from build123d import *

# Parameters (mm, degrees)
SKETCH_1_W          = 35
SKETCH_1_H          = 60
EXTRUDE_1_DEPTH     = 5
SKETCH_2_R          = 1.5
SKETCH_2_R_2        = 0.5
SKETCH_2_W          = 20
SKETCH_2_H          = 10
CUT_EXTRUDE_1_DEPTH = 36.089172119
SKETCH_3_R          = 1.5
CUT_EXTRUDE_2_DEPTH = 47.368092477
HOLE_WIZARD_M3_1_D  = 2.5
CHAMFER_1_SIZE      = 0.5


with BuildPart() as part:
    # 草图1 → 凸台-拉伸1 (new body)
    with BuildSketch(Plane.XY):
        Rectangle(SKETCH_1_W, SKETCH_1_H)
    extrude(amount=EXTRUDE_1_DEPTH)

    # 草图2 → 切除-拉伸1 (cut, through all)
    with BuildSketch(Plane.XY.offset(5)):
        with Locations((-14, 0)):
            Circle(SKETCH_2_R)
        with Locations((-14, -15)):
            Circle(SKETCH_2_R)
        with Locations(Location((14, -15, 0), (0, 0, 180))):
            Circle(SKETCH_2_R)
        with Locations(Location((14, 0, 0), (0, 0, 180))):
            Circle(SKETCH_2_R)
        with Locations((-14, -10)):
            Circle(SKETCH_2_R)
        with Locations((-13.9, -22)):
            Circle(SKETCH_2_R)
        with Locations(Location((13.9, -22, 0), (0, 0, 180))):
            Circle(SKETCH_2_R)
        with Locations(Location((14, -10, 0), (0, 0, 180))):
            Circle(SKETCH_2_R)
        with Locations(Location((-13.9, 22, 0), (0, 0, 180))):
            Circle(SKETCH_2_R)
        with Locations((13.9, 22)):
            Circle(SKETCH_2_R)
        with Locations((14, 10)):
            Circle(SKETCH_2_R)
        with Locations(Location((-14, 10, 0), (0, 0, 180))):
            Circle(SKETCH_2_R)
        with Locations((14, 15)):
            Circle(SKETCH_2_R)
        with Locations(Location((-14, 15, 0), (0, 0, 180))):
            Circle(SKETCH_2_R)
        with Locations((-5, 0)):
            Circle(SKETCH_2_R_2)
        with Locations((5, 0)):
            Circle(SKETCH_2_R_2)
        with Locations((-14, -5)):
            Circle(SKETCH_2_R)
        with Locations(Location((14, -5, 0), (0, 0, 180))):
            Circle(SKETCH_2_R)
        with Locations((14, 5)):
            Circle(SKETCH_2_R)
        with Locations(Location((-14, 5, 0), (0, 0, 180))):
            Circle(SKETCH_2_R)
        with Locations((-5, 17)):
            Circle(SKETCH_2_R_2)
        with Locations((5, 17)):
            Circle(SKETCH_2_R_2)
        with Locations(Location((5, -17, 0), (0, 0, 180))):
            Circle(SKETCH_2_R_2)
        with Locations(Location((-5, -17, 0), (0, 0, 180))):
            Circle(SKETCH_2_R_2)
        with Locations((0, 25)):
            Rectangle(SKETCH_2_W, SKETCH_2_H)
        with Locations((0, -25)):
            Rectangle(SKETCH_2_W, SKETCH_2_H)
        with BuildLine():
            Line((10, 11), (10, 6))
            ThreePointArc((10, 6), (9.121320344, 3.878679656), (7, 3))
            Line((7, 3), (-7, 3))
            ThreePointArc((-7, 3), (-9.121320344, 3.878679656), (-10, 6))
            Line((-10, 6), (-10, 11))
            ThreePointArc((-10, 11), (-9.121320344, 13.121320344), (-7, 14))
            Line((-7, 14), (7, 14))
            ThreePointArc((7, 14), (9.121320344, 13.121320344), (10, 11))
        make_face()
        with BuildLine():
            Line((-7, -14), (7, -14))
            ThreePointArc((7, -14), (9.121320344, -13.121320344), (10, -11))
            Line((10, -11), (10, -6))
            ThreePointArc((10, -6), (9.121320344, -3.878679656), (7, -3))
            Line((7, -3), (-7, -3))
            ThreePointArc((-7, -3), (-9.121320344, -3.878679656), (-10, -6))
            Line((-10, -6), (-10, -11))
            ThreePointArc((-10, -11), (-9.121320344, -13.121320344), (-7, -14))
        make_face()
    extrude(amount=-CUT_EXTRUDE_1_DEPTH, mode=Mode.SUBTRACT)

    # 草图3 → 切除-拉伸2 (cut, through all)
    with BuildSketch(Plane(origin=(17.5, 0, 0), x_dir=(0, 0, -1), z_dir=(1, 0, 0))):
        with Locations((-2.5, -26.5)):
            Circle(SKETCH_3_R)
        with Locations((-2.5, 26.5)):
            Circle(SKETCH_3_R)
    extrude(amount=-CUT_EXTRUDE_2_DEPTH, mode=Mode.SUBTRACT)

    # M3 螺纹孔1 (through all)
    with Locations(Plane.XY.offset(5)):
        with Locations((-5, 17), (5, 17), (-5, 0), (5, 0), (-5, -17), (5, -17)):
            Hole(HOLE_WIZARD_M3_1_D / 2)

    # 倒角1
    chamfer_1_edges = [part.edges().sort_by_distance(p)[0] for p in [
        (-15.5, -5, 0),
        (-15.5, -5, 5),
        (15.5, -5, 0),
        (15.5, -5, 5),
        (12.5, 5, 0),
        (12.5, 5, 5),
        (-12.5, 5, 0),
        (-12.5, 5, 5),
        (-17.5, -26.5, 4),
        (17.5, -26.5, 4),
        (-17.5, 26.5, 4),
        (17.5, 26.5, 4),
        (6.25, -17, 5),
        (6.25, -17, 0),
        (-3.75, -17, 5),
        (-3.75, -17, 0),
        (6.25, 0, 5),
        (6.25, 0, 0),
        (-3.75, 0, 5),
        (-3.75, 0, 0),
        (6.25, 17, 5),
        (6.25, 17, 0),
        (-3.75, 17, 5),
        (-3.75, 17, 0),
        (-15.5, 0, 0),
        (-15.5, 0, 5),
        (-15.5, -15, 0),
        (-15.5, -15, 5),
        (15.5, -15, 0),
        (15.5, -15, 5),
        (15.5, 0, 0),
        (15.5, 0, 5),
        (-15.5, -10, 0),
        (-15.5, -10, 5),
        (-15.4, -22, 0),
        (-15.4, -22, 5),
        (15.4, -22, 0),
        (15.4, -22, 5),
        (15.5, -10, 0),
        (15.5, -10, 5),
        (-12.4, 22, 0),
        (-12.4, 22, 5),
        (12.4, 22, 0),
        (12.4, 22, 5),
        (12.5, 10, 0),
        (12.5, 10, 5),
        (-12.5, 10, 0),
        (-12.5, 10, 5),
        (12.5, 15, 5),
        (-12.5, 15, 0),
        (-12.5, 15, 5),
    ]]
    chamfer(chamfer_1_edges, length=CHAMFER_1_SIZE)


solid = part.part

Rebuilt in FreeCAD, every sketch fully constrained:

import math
import FreeCAD as App
import Part
import Sketcher
from FreeCAD import Vector


def edges_at(feature, points):
    """Names of the edges that pass closest to the given points."""
    edges = feature.Shape.Edges
    near = lambda p: min(range(len(edges)), key=lambda i: edges[i].distToShape(Part.Vertex(*p))[0])
    return sorted({f"Edge{near(p) + 1}" for p in points})


def add_polygon(sketch, points):
    """Adds a closed chain of lines whose ends are joined by coincident constraints."""
    first, n = sketch.GeometryCount, len(points)
    for a, b in zip(points, points[1:] + points[:1]):
        sketch.addGeometry(Part.LineSegment(App.Vector(*a, 0), App.Vector(*b, 0)), False)
    for i in range(n):
        sketch.addConstraint(Sketcher.Constraint("Coincident", first + i, 2, first + (i + 1) % n, 1))

doc = App.newDocument("Part")
body = doc.addObject("PartDesign::Body", "Body")

# Sketch on XY plane
sketch1 = doc.addObject("Sketcher::SketchObject", "Sketch")
body.addObject(sketch1)
sketch1.AttachmentSupport = (doc.XY_Plane, [""])
sketch1.MapMode = "FlatFace"
add_polygon(sketch1, [(-18, 30), (-18, -30), (18, -30), (18, 30)])  # lines 0-3
sketch1.addConstraint([
    Sketcher.Constraint("Vertical", 0),
    Sketcher.Constraint("Horizontal", 1),
    Sketcher.Constraint("Vertical", 2),
    Sketcher.Constraint("Horizontal", 3),
    Sketcher.Constraint("Symmetric", 0, 2, 2, 2, -1, 1),
    Sketcher.Constraint("DistanceX", 1, 1, 1, 2, 35.0),
    Sketcher.Constraint("DistanceY", 0, 2, 0, 1, 60.0),
])
pad1 = doc.addObject("PartDesign::Pad", "Pad")
body.addObject(pad1)
pad1.Profile = sketch1
pad1.Length = 5

# Sketch on XY plane
sketch2 = doc.addObject("Sketcher::SketchObject", "Sketch001")
body.addObject(sketch2)
sketch2.AttachmentSupport = (doc.XY_Plane, [""])
sketch2.MapMode = "FlatFace"
sketch2.AttachmentOffset = App.Placement(Vector(0, 0, 5), App.Rotation())
sketch2.addGeometry(Part.Circle(Vector(-14, 0, 0), Vector(0, 0, 1), 1.5), False)  # 0
sketch2.addGeometry(Part.Circle(Vector(-14, -15, 0), Vector(0, 0, 1), 1.5), False)  # 1
sketch2.addGeometry(Part.Circle(Vector(14, -15, 0), Vector(0, 0, 1), 1.5), False)  # 2
sketch2.addGeometry(Part.Circle(Vector(14, 0, 0), Vector(0, 0, 1), 1.5), False)  # 3
sketch2.addGeometry(Part.Circle(Vector(-14, -10, 0), Vector(0, 0, 1), 1.5), False)  # 4
sketch2.addGeometry(Part.Circle(Vector(-13.9, -22, 0), Vector(0, 0, 1), 1.5), False)  # 5
sketch2.addGeometry(Part.Circle(Vector(13.9, -22, 0), Vector(0, 0, 1), 1.5), False)  # 6
sketch2.addGeometry(Part.Circle(Vector(14, -10, 0), Vector(0, 0, 1), 1.5), False)  # 7
sketch2.addGeometry(Part.Circle(Vector(-13.9, 22, 0), Vector(0, 0, 1), 1.5), False)  # 8
sketch2.addGeometry(Part.Circle(Vector(13.9, 22, 0), Vector(0, 0, 1), 1.5), False)  # 9
sketch2.addGeometry(Part.Circle(Vector(14, 10, 0), Vector(0, 0, 1), 1.5), False)  # 10
sketch2.addGeometry(Part.Circle(Vector(-14, 10, 0), Vector(0, 0, 1), 1.5), False)  # 11
sketch2.addGeometry(Part.Circle(Vector(14, 15, 0), Vector(0, 0, 1), 1.5), False)  # 12
sketch2.addGeometry(Part.Circle(Vector(-14, 15, 0), Vector(0, 0, 1), 1.5), False)  # 13
sketch2.addGeometry(Part.Circle(Vector(-5, 0, 0), Vector(0, 0, 1), 0.5), False)  # 14
sketch2.addGeometry(Part.Circle(Vector(5, 0, 0), Vector(0, 0, 1), 0.5), False)  # 15
sketch2.addGeometry(Part.Circle(Vector(-14, -5, 0), Vector(0, 0, 1), 1.5), False)  # 16
sketch2.addGeometry(Part.Circle(Vector(14, -5, 0), Vector(0, 0, 1), 1.5), False)  # 17
sketch2.addGeometry(Part.Circle(Vector(14, 5, 0), Vector(0, 0, 1), 1.5), False)  # 18
sketch2.addGeometry(Part.Circle(Vector(-14, 5, 0), Vector(0, 0, 1), 1.5), False)  # 19
sketch2.addGeometry(Part.Circle(Vector(-5, 17, 0), Vector(0, 0, 1), 0.5), False)  # 20
sketch2.addGeometry(Part.Circle(Vector(5, 17, 0), Vector(0, 0, 1), 0.5), False)  # 21
sketch2.addGeometry(Part.Circle(Vector(5, -17, 0), Vector(0, 0, 1), 0.5), False)  # 22
sketch2.addGeometry(Part.Circle(Vector(-5, -17, 0), Vector(0, 0, 1), 0.5), False)  # 23
add_polygon(sketch2, [(-10, 30), (-10, 20), (10, 20), (10, 30)])  # lines 24-27
add_polygon(sketch2, [(-10, -20), (-10, -30), (10, -30), (10, -20)])  # lines 28-31
sketch2.addGeometry(Part.LineSegment(Vector(10, 6, 0), Vector(10, 11, 0)), False)  # 32
sketch2.addGeometry(Part.ArcOfCircle(Part.Circle(Vector(7, 11, 0), Vector(0, 0, 1), 3), math.radians(0), math.radians(90)), False)  # 33
sketch2.addGeometry(Part.LineSegment(Vector(7, 14, 0), Vector(-7, 14, 0)), False)  # 34
sketch2.addGeometry(Part.ArcOfCircle(Part.Circle(Vector(-7, 11, 0), Vector(0, 0, 1), 3), math.radians(90), math.radians(180)), False)  # 35
sketch2.addGeometry(Part.LineSegment(Vector(-10, 11, 0), Vector(-10, 6, 0)), False)  # 36
sketch2.addGeometry(Part.ArcOfCircle(Part.Circle(Vector(-7, 6, 0), Vector(0, 0, 1), 3), math.radians(180), math.radians(270)), False)  # 37
sketch2.addGeometry(Part.LineSegment(Vector(-7, 3, 0), Vector(7, 3, 0)), False)  # 38
sketch2.addGeometry(Part.ArcOfCircle(Part.Circle(Vector(7, 6, 0), Vector(0, 0, 1), 3), math.radians(-90), math.radians(0)), False)  # 39
sketch2.addGeometry(Part.LineSegment(Vector(-7, -14, 0), Vector(7, -14, 0)), False)  # 40
sketch2.addGeometry(Part.ArcOfCircle(Part.Circle(Vector(7, -11, 0), Vector(0, 0, 1), 3), math.radians(-90), math.radians(0)), False)  # 41
sketch2.addGeometry(Part.LineSegment(Vector(10, -11, 0), Vector(10, -6, 0)), False)  # 42
sketch2.addGeometry(Part.ArcOfCircle(Part.Circle(Vector(7, -6, 0), Vector(0, 0, 1), 3), math.radians(0), math.radians(90)), False)  # 43
sketch2.addGeometry(Part.LineSegment(Vector(7, -3, 0), Vector(-7, -3, 0)), False)  # 44
sketch2.addGeometry(Part.ArcOfCircle(Part.Circle(Vector(-7, -6, 0), Vector(0, 0, 1), 3), math.radians(90), math.radians(180)), False)  # 45
sketch2.addGeometry(Part.LineSegment(Vector(-10, -6, 0), Vector(-10, -11, 0)), False)  # 46
sketch2.addGeometry(Part.ArcOfCircle(Part.Circle(Vector(-7, -11, 0), Vector(0, 0, 1), 3), math.radians(180), math.radians(270)), False)  # 47
sketch2.addConstraint([
    Sketcher.Constraint("Tangent", 32, 2, 33, 1),
    Sketcher.Constraint("Tangent", 33, 2, 34, 1),
    Sketcher.Constraint("Tangent", 34, 2, 35, 1),
    Sketcher.Constraint("Tangent", 35, 2, 36, 1),
    Sketcher.Constraint("Tangent", 36, 2, 37, 1),
    Sketcher.Constraint("Tangent", 37, 2, 38, 1),
    Sketcher.Constraint("Tangent", 38, 2, 39, 1),
    Sketcher.Constraint("Tangent", 39, 2, 32, 1),
    Sketcher.Constraint("Tangent", 40, 2, 41, 1),
    Sketcher.Constraint("Tangent", 41, 2, 42, 1),
    Sketcher.Constraint("Tangent", 42, 2, 43, 1),
    Sketcher.Constraint("Tangent", 43, 2, 44, 1),
    Sketcher.Constraint("Tangent", 44, 2, 45, 1),
    Sketcher.Constraint("Tangent", 45, 2, 46, 1),
    Sketcher.Constraint("Tangent", 46, 2, 47, 1),
    Sketcher.Constraint("Tangent", 47, 2, 40, 1),
    Sketcher.Constraint("Vertical", 24),
    Sketcher.Constraint("Horizontal", 25),
    Sketcher.Constraint("Vertical", 26),
    Sketcher.Constraint("Horizontal", 27),
    Sketcher.Constraint("Vertical", 28),
    Sketcher.Constraint("Horizontal", 29),
    Sketcher.Constraint("Vertical", 30),
    Sketcher.Constraint("Horizontal", 31),
    Sketcher.Constraint("Vertical", 32),
    Sketcher.Constraint("Horizontal", 34),
    Sketcher.Constraint("Vertical", 36),
    Sketcher.Constraint("Horizontal", 38),
    Sketcher.Constraint("Horizontal", 40),
    Sketcher.Constraint("Vertical", 42),
    Sketcher.Constraint("Horizontal", 44),
    Sketcher.Constraint("Vertical", 46),
    Sketcher.Constraint("Equal", 0, 1),
    Sketcher.Constraint("Equal", 1, 2),
    Sketcher.Constraint("Equal", 2, 3),
    Sketcher.Constraint("Equal", 3, 4),
    Sketcher.Constraint("Equal", 4, 5),
    Sketcher.Constraint("Equal", 5, 6),
    Sketcher.Constraint("Equal", 6, 7),
    Sketcher.Constraint("Equal", 7, 8),
    Sketcher.Constraint("Equal", 8, 9),
    Sketcher.Constraint("Equal", 9, 10),
    Sketcher.Constraint("Equal", 10, 11),
    Sketcher.Constraint("Equal", 11, 12),
    Sketcher.Constraint("Equal", 12, 13),
    Sketcher.Constraint("Equal", 14, 15),
    Sketcher.Constraint("Equal", 13, 16),
    Sketcher.Constraint("Equal", 16, 17),
    Sketcher.Constraint("Equal", 17, 18),
    Sketcher.Constraint("Equal", 18, 19),
    Sketcher.Constraint("Equal", 15, 20),
    Sketcher.Constraint("Equal", 20, 21),
    Sketcher.Constraint("Equal", 21, 22),
    Sketcher.Constraint("Equal", 22, 23),
    Sketcher.Constraint("Equal", 33, 35),
    Sketcher.Constraint("Equal", 35, 37),
    Sketcher.Constraint("Equal", 37, 39),
    Sketcher.Constraint("Equal", 39, 41),
    Sketcher.Constraint("Equal", 41, 43),
    Sketcher.Constraint("Equal", 43, 45),
    Sketcher.Constraint("Equal", 45, 47),
    Sketcher.Constraint("Symmetric", 0, 3, 3, 3, -1, 1),
    Sketcher.Constraint("Symmetric", 6, 3, 8, 3, -1, 1),
    Sketcher.Constraint("Symmetric", 5, 3, 9, 3, -1, 1),
    Sketcher.Constraint("Symmetric", 4, 3, 10, 3, -1, 1),
    Sketcher.Constraint("Symmetric", 7, 3, 11, 3, -1, 1),
    Sketcher.Constraint("Symmetric", 1, 3, 12, 3, -1, 1),
    Sketcher.Constraint("Symmetric", 2, 3, 13, 3, -1, 1),
    Sketcher.Constraint("Symmetric", 14, 3, 15, 3, -1, 1),
    Sketcher.Constraint("Symmetric", 16, 3, 18, 3, -1, 1),
    Sketcher.Constraint("Symmetric", 17, 3, 19, 3, -1, 1),
    Sketcher.Constraint("Symmetric", 20, 3, 22, 3, -1, 1),
    Sketcher.Constraint("Symmetric", 21, 3, 23, 3, -1, 1),
    Sketcher.Constraint("Symmetric", 35, 3, 41, 3, -1, 1),
    Sketcher.Constraint("Symmetric", 39, 3, 45, 3, -1, 1),
    Sketcher.Constraint("Symmetric", 26, 2, 28, 2, -1, 1),
    Sketcher.Constraint("Symmetric", 24, 2, 30, 2, -1, 1),
    Sketcher.Constraint("Symmetric", 1, 3, 2, 3, -2),
    Sketcher.Constraint("Symmetric", 5, 3, 6, 3, -2),
    Sketcher.Constraint("Symmetric", 4, 3, 7, 3, -2),
    Sketcher.Constraint("Symmetric", 16, 3, 17, 3, -2),
    Sketcher.Constraint("Symmetric", 20, 3, 21, 3, -2),
    Sketcher.Constraint("PointOnObject", 0, 3, -1),
    Sketcher.Constraint("PointOnObject", 14, 3, -1),
    Sketcher.Constraint("Vertical", 0, 3, 1, 3),
    Sketcher.Constraint("Vertical", 1, 3, 4, 3),
    Sketcher.Constraint("Vertical", 13, 3, 16, 3),
    Sketcher.Constraint("Vertical", 14, 3, 20, 3),
    Sketcher.Constraint("Vertical", 39, 3, 41, 3),
    Sketcher.Constraint("Vertical", 27, 2, 28, 2),
    Sketcher.Constraint("Vertical", 30, 2, 32, 2),
    Sketcher.Constraint("Diameter", 0, 3.0),
    Sketcher.Constraint("Diameter", 14, 1.0),
    Sketcher.Constraint("Radius", 33, 3.0),
    Sketcher.Constraint("DistanceX", 25, 1, 25, 2, 20.0),
    Sketcher.Constraint("DistanceY", 24, 2, 24, 1, 10.0),
    Sketcher.Constraint("DistanceY", 32, 1, 32, 2, 5.0),
    Sketcher.Constraint("DistanceX", 0, 3, -1, 1, 14.0),
    Sketcher.Constraint("DistanceY", 1, 3, -1, 1, 15.0),
    Sketcher.Constraint("DistanceY", 4, 3, -1, 1, 10.0),
    Sketcher.Constraint("DistanceY", 5, 3, -1, 1, 22.0),
    Sketcher.Constraint("DistanceX", 14, 3, -1, 1, 5.0),
    Sketcher.Constraint("DistanceY", 16, 3, -1, 1, 5.0),
    Sketcher.Constraint("DistanceY", -1, 1, 20, 3, 17.0),
    Sketcher.Constraint("DistanceY", -1, 1, 33, 3, 11.0),
    Sketcher.Constraint("DistanceY", -1, 1, 24, 2, 20.0),
    Sketcher.Constraint("DistanceX", 5, 3, -1, 1, 13.9),
])
pocket1 = doc.addObject("PartDesign::Pocket", "Pocket")
body.addObject(pocket1)
pocket1.Profile = sketch2
pocket1.Type = "ThroughAll"

# Sketch on YZ plane
sketch3 = doc.addObject("Sketcher::SketchObject", "Sketch002")
body.addObject(sketch3)
sketch3.AttachmentSupport = (doc.YZ_Plane, [""])
sketch3.MapMode = "FlatFace"
sketch3.AttachmentOffset = App.Placement(Vector(0, 0, 17.5), App.Rotation())
sketch3.addGeometry([
    Part.Circle(Vector(-26.5, 2.5, 0), Vector(0, 0, 1), 1.5),
    Part.Circle(Vector(26.5, 2.5, 0), Vector(0, 0, 1), 1.5),
], False)
sketch3.addConstraint([
    Sketcher.Constraint("Equal", 0, 1),
    Sketcher.Constraint("Symmetric", 0, 3, 1, 3, -2),
    Sketcher.Constraint("Diameter", 0, 3.0),
    Sketcher.Constraint("DistanceX", 0, 3, 1, 3, 53.0),
    Sketcher.Constraint("DistanceY", -1, 1, 0, 3, 2.5),
])
pocket2 = doc.addObject("PartDesign::Pocket", "Pocket001")
body.addObject(pocket2)
pocket2.Profile = sketch3
pocket2.Type = "ThroughAll"

# Sketch on XY plane
sketch4 = doc.addObject("Sketcher::SketchObject", "Sketch003")
body.addObject(sketch4)
sketch4.AttachmentSupport = (doc.XY_Plane, [""])
sketch4.MapMode = "FlatFace"
sketch4.AttachmentOffset = App.Placement(Vector(0, 0, 5), App.Rotation())
sketch4.addGeometry([
    Part.Circle(Vector(-5, 17, 0), Vector(0, 0, 1), 1.2),  # 0
    Part.Circle(Vector(5, 17, 0), Vector(0, 0, 1), 1.2),  # 1
    Part.Circle(Vector(-5, 0, 0), Vector(0, 0, 1), 1.2),  # 2
    Part.Circle(Vector(5, 0, 0), Vector(0, 0, 1), 1.2),  # 3
    Part.Circle(Vector(-5, -17, 0), Vector(0, 0, 1), 1.2),  # 4
    Part.Circle(Vector(5, -17, 0), Vector(0, 0, 1), 1.2),  # 5
], False)
sketch4.addConstraint([
    Sketcher.Constraint("Equal", 0, 1),
    Sketcher.Constraint("Equal", 1, 2),
    Sketcher.Constraint("Equal", 2, 3),
    Sketcher.Constraint("Equal", 3, 4),
    Sketcher.Constraint("Equal", 4, 5),
    Sketcher.Constraint("Symmetric", 2, 3, 3, 3, -1, 1),
    Sketcher.Constraint("Symmetric", 1, 3, 4, 3, -1, 1),
    Sketcher.Constraint("Symmetric", 0, 3, 5, 3, -1, 1),
    Sketcher.Constraint("Symmetric", 0, 3, 1, 3, -2),
    Sketcher.Constraint("PointOnObject", 2, 3, -1),
    Sketcher.Constraint("Vertical", 0, 3, 2, 3),
    Sketcher.Constraint("Diameter", 0, 2.5),
    Sketcher.Constraint("DistanceX", 0, 3, -1, 1, 5.0),
    Sketcher.Constraint("DistanceY", -1, 1, 0, 3, 17.0),
])
doc.recompute()
hole = doc.addObject("PartDesign::Hole", "Hole")
body.addObject(hole)
hole.Profile = sketch4
hole.ThreadType = "None"
hole.Diameter = 2.5
hole.DepthType = "ThroughAll"
doc.recompute()

chamfer = doc.addObject("PartDesign::Chamfer", "Chamfer")
body.addObject(chamfer)
chamfer.Base = (hole, edges_at(hole, [
    (-15.5, -5, 0),
    (-15.5, -5, 5),
    (15.5, -5, 0),
    (15.5, -5, 5),
    (12.5, 5, 0),
    (12.5, 5, 5),
    (-12.5, 5, 0),
    (-12.5, 5, 5),
    (-17.5, -26.5, 4),
    (17.5, -26.5, 4),
    (-17.5, 26.5, 4),
    (17.5, 26.5, 4),
    (6.25, -17, 5),
    (6.25, -17, 0),
    (-3.75, -17, 5),
    (-3.75, -17, 0),
    (6.25, 0, 5),
    (6.25, 0, 0),
    (-3.75, 0, 5),
    (-3.75, 0, 0),
    (6.25, 17, 5),
    (6.25, 17, 0),
    (-3.75, 17, 5),
    (-3.75, 17, 0),
    (-15.5, 0, 0),
    (-15.5, 0, 5),
    (-15.5, -15, 0),
    (-15.5, -15, 5),
    (15.5, -15, 0),
    (15.5, -15, 5),
    (15.5, 0, 0),
    (15.5, 0, 5),
    (-15.5, -10, 0),
    (-15.5, -10, 5),
    (-15.4, -22, 0),
    (-15.4, -22, 5),
    (15.4, -22, 0),
    (15.4, -22, 5),
    (15.5, -10, 0),
    (15.5, -10, 5),
    (-12.4, 22, 0),
    (-12.4, 22, 5),
    (12.4, 22, 0),
    (12.4, 22, 5),
    (12.5, 10, 0),
    (12.5, 10, 5),
    (-12.5, 10, 0),
    (-12.5, 10, 5),
    (12.5, 15, 5),
    (-12.5, 15, 0),
    (-12.5, 15, 5),
]))
chamfer.Size = 0.5

doc.recompute()
